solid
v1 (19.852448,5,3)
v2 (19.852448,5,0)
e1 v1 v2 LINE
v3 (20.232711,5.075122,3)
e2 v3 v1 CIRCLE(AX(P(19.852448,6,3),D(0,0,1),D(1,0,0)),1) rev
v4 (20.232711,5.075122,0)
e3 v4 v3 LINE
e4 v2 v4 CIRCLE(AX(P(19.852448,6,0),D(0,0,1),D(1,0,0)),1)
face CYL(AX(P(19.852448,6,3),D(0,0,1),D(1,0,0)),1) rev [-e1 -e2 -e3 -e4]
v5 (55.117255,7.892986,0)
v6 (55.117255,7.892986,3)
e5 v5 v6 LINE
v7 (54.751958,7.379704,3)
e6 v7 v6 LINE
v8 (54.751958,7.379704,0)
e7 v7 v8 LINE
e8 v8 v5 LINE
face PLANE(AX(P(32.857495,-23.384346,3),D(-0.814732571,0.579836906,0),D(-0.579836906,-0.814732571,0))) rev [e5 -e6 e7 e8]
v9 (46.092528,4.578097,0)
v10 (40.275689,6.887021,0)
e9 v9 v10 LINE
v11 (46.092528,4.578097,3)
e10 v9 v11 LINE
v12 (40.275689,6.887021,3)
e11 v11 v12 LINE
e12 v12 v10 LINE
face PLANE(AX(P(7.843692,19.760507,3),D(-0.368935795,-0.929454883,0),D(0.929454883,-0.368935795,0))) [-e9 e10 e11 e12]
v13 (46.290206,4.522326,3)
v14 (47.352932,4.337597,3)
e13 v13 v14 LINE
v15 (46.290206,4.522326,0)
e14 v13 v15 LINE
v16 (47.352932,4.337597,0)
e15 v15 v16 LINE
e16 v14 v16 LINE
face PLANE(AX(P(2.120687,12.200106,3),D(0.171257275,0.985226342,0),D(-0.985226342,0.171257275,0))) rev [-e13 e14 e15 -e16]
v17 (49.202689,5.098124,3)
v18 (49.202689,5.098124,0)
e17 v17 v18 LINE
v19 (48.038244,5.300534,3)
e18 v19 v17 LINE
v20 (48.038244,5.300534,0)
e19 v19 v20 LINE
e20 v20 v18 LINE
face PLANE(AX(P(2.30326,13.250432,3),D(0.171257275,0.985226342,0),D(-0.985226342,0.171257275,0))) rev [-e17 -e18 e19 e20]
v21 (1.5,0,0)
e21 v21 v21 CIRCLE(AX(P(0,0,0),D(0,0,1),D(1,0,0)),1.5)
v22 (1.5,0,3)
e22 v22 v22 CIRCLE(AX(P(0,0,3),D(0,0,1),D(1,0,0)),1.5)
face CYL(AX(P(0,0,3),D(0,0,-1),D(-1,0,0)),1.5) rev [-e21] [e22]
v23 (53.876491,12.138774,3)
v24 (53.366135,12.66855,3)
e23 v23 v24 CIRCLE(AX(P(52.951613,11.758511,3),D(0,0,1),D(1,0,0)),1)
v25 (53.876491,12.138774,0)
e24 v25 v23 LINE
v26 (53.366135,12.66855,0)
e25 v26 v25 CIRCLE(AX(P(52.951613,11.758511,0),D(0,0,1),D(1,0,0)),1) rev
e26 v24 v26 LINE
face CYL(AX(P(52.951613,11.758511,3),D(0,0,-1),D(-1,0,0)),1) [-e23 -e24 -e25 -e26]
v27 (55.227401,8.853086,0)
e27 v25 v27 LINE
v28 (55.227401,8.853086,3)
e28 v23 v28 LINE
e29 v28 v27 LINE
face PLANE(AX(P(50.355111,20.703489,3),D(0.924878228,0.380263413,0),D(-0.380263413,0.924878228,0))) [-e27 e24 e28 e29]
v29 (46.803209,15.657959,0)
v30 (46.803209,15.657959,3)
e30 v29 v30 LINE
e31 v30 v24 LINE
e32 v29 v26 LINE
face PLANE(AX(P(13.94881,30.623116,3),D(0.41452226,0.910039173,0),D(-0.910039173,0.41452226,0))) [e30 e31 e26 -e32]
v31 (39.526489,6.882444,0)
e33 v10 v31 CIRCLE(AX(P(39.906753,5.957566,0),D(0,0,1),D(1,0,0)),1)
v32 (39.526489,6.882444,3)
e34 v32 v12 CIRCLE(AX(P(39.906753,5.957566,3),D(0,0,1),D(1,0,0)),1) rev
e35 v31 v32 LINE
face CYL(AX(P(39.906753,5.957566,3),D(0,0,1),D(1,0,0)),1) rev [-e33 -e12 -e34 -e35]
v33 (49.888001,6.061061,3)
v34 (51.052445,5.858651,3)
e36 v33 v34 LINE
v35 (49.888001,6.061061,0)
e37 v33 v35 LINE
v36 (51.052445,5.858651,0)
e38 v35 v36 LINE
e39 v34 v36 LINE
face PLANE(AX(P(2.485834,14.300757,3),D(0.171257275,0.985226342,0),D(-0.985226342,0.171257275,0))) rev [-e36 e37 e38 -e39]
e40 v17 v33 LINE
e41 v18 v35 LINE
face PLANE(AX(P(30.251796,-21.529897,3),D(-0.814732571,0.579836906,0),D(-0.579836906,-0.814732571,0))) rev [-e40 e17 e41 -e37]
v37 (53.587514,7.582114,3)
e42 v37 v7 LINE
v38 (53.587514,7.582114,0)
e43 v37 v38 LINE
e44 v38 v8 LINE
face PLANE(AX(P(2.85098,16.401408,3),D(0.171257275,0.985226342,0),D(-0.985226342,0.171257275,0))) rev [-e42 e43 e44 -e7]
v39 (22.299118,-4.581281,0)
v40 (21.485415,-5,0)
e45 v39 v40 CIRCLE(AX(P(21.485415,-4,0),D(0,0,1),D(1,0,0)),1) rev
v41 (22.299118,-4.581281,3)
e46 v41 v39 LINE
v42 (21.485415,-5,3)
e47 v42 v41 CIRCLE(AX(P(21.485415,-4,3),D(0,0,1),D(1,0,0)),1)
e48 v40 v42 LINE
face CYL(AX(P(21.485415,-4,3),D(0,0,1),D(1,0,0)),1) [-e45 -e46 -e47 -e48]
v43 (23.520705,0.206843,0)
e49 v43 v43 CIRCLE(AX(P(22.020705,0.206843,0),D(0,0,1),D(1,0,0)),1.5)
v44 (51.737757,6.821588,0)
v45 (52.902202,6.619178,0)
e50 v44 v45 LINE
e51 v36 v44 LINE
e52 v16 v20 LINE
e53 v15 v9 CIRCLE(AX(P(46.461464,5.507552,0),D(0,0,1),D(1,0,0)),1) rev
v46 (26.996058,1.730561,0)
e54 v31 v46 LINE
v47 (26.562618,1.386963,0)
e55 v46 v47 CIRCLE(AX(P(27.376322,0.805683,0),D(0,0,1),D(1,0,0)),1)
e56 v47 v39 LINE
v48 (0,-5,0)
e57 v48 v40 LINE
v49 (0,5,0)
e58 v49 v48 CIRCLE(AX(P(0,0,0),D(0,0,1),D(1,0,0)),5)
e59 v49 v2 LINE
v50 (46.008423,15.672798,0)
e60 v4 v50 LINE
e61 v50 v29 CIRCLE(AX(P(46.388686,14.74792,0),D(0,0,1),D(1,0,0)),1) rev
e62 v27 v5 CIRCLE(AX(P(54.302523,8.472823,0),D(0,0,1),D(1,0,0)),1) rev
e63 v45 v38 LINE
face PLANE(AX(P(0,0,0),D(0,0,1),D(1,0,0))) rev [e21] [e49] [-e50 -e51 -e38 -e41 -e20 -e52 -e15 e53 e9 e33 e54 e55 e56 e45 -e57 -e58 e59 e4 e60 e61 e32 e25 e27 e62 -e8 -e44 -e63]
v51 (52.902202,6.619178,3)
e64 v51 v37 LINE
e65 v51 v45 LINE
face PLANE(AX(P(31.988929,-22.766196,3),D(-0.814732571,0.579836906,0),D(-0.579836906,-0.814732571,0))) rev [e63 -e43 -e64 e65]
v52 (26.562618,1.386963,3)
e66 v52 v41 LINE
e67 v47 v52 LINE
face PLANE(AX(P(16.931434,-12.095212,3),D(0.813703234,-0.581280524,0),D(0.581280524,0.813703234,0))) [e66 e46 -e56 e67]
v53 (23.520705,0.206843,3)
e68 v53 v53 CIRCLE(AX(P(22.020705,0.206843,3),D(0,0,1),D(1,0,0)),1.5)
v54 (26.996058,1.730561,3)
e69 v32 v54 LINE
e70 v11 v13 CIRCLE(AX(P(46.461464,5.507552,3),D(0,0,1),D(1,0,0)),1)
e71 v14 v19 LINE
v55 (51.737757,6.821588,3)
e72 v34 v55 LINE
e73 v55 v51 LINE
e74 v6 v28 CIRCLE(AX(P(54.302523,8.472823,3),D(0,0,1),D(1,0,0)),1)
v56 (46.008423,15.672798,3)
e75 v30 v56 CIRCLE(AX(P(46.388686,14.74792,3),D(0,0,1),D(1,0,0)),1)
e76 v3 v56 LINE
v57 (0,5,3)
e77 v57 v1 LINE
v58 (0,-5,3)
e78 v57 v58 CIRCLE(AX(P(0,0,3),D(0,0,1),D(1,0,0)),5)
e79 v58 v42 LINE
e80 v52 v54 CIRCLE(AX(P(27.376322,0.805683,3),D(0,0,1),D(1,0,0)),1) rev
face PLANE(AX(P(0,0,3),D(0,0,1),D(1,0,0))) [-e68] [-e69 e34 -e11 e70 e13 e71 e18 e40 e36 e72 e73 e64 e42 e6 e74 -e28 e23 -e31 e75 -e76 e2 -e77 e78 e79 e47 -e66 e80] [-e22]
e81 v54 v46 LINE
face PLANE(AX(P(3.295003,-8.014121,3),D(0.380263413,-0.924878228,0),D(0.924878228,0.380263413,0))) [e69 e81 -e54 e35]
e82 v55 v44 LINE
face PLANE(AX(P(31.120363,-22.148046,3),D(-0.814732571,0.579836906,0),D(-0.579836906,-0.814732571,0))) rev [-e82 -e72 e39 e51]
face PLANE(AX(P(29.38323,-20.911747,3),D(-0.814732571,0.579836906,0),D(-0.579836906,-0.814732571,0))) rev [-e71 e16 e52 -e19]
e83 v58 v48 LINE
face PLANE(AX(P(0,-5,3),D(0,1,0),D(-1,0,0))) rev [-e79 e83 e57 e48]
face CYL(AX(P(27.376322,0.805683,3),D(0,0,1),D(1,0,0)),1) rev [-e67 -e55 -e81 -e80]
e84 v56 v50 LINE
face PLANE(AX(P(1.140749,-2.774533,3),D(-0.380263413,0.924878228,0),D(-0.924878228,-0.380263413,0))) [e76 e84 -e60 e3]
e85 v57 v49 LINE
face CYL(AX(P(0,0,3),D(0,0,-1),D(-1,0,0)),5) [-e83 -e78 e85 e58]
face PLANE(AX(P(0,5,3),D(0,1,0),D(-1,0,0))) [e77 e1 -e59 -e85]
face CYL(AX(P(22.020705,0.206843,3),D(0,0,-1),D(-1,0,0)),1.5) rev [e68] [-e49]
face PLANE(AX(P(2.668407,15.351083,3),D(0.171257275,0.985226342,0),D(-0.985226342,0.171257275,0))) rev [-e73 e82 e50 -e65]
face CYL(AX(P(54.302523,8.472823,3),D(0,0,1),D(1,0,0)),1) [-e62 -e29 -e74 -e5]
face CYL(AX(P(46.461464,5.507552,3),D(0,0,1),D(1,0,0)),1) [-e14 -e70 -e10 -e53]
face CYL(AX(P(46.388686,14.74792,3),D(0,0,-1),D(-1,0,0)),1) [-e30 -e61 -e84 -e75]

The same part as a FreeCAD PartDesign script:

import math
import FreeCAD as App
import Part
import Sketcher

V = App.Vector
Q = App.Units.Quantity


def edges_at(feature, points):
    """Names of the edges that pass closest to the given points."""
    edges = feature.Shape.Edges
    near = lambda p: min(range(len(edges)), key=lambda i: edges[i].distToShape(Part.Vertex(*p))[0])
    return sorted({f"Edge{near(p) + 1}" for p in points})

doc = App.newDocument("Part")
body = doc.addObject("PartDesign::Body", "Body")

sketch1 = body.newObject("Sketcher::SketchObject", "Sketch")
sketch1.AttachmentSupport = (doc.getObject("XY_Plane"), [""])
sketch1.MapMode = "FlatFace"
sketch1.addGeometry(Part.LineSegment(V(20.1, 5, 0), V(0, 5, 0)), False)
sketch1.addGeometry(Part.ArcOfCircle(Part.Circle(V(0, 0, 0), V(0, 0, 1), 5), math.radians(90), math.radians(270)), False)
sketch1.addGeometry(Part.LineSegment(V(0, -5, 0), V(22, -5, 0)), False)
sketch1.addGeometry(Part.LineSegment(V(22, -5, 0), V(26.7, 1.6, 0)), False)
sketch1.addGeometry(Part.LineSegment(V(26.7, 1.6, 0), V(39.9, 7, 0)), False)
sketch1.addGeometry(Part.LineSegment(V(39.9, 7, 0), V(46.2, 4.5, 0)), False)
sketch1.addGeometry(Part.LineSegment(V(46.2, 4.5, 0), V(47.4, 4.3, 0)), False)
sketch1.addGeometry(Part.LineSegment(V(47.4, 4.3, 0), V(48, 5.3, 0)), False)
sketch1.addGeometry(Part.LineSegment(V(48, 5.3, 0), V(49.2, 5.1, 0)), False)
sketch1.addGeometry(Part.LineSegment(V(49.2, 5.1, 0), V(49.9, 6.1, 0)), False)
sketch1.addGeometry(Part.LineSegment(V(49.9, 6.1, 0), V(51.1, 5.9, 0)), False)
sketch1.addGeometry(Part.LineSegment(V(51.1, 5.9, 0), V(51.7, 6.8, 0)), False)
sketch1.addGeometry(Part.LineSegment(V(51.7, 6.8, 0), V(52.9, 6.6, 0)), False)
sketch1.addGeometry(Part.LineSegment(V(52.9, 6.6, 0), V(53.6, 7.6, 0)), False)
sketch1.addGeometry(Part.LineSegment(V(53.6, 7.6, 0), V(54.8, 7.4, 0)), False)
sketch1.addGeometry(Part.LineSegment(V(54.8, 7.4, 0), V(55.4, 8.3, 0)), False)
sketch1.addGeometry(Part.LineSegment(V(55.4, 8.3, 0), V(53.7, 12.5, 0)), False)
sketch1.addGeometry(Part.LineSegment(V(53.7, 12.5, 0), V(46.4, 15.8, 0)), False)
sketch1.addGeometry(Part.LineSegment(V(46.4, 15.8, 0), V(20.1, 5, 0)), False)
sketch1.addGeometry(Part.Circle(V(0, 0, 0), V(0, 0, 1), 1.5), False)
sketch1.addGeometry(Part.Circle(V(22, 0.2, 0), V(0, 0, 1), 1.5), False)
sketch1.addConstraint(Sketcher.Constraint("Tangent", 0, 2, 1, 1))
sketch1.addConstraint(Sketcher.Constraint("Tangent", 1, 2, 2, 1))
sketch1.addConstraint(Sketcher.Constraint("Coincident", 2, 2, 3, 1))
sketch1.addConstraint(Sketcher.Constraint("Coincident", 3, 2, 4, 1))
sketch1.addConstraint(Sketcher.Constraint("Coincident", 4, 2, 5, 1))
sketch1.addConstraint(Sketcher.Constraint("Coincident", 5, 2, 6, 1))
sketch1.addConstraint(Sketcher.Constraint("Coincident", 6, 2, 7, 1))
sketch1.addConstraint(Sketcher.Constraint("Coincident", 7, 2, 8, 1))
sketch1.addConstraint(Sketcher.Constraint("Coincident", 8, 2, 9, 1))
sketch1.addConstraint(Sketcher.Constraint("Coincident", 9, 2, 10, 1))
sketch1.addConstraint(Sketcher.Constraint("Coincident", 10, 2, 11, 1))
sketch1.addConstraint(Sketcher.Constraint("Coincident", 11, 2, 12, 1))
sketch1.addConstraint(Sketcher.Constraint("Coincident", 12, 2, 13, 1))
sketch1.addConstraint(Sketcher.Constraint("Coincident", 13, 2, 14, 1))
sketch1.addConstraint(Sketcher.Constraint("Coincident", 14, 2, 15, 1))
sketch1.addConstraint(Sketcher.Constraint("Coincident", 15, 2, 16, 1))
sketch1.addConstraint(Sketcher.Constraint("Coincident", 16, 2, 17, 1))
sketch1.addConstraint(Sketcher.Constraint("Coincident", 17, 2, 18, 1))
sketch1.addConstraint(Sketcher.Constraint("Coincident", 18, 2, 0, 1))
sketch1.addConstraint(Sketcher.Constraint("Horizontal", 0))
sketch1.addConstraint(Sketcher.Constraint("Horizontal", 2))
sketch1.addConstraint(Sketcher.Constraint("Coincident", 1, 3, -1, 1))
sketch1.addConstraint(Sketcher.Constraint("Coincident", 19, 3, -1, 1))
sketch1.addConstraint(Sketcher.Constraint("Equal", 19, 20))
sketch1.addConstraint(Sketcher.Constraint("Parallel", 6, 8))
sketch1.addConstraint(Sketcher.Constraint("Parallel", 7, 9))
sketch1.addConstraint(Sketcher.Constraint("Parallel", 8, 10))
sketch1.addConstraint(Sketcher.Constraint("Parallel", 9, 11))
sketch1.addConstraint(Sketcher.Constraint("Parallel", 10, 12))
sketch1.addConstraint(Sketcher.Constraint("Parallel", 11, 13))
sketch1.addConstraint(Sketcher.Constraint("Parallel", 12, 14))
sketch1.addConstraint(Sketcher.Constraint("Parallel", 13, 15))
sketch1.addConstraint(Sketcher.Constraint("Perpendicular", 4, 16))
sketch1.addConstraint(Sketcher.Constraint("Perpendicular", 16, 18))
sketch1.addConstraint(Sketcher.Constraint("Equal", 6, 7))
sketch1.addConstraint(Sketcher.Constraint("Equal", 7, 8))
sketch1.addConstraint(Sketcher.Constraint("Equal", 8, 9))
sketch1.addConstraint(Sketcher.Constraint("Equal", 9, 10))
sketch1.addConstraint(Sketcher.Constraint("Equal", 10, 11))
sketch1.addConstraint(Sketcher.Constraint("Equal", 11, 12))
sketch1.addConstraint(Sketcher.Constraint("Equal", 12, 13))
sketch1.addConstraint(Sketcher.Constraint("Equal", 13, 14))
sketch1.addConstraint(Sketcher.Constraint("Equal", 14, 15))
sketch1.addConstraint(Sketcher.Constraint("Diameter", 19, 3.0))
sketch1.addConstraint(Sketcher.Constraint("Radius", 1, 5.0))
sketch1.addConstraint(Sketcher.Constraint("DistanceX", 2, 1, 2, 2, 22.0))
sketch1.addConstraint(Sketcher.Constraint("Distance", 16, 4.5))
sketch1.addConstraint(Sketcher.Constraint("Distance", 18, 28.5))
sketch1.addConstraint(Sketcher.Constraint("DistanceX", 0, 2, 0, 1, 20.05))
sketch1.addConstraint(Sketcher.Constraint("Angle", 4, Q("22.35 deg")))
sketch1.addConstraint(Sketcher.Constraint("Angle", 5, Q("-21.65 deg")))
sketch1.addConstraint(Sketcher.Constraint("Distance", 4, 14.24))
sketch1.addConstraint(Sketcher.Constraint("DistanceX", -1, 1, 9, 2, 49.888001))
sketch1.addConstraint(Sketcher.Constraint("DistanceX", -1, 1, 3, 2, 26.729898))
sketch1.addConstraint(Sketcher.Constraint("DistanceX", -1, 1, 12, 2, 52.902202))
sketch1.addConstraint(Sketcher.Constraint("DistanceY", -1, 1, 3, 2, 1.62113))
sketch1.addConstraint(Sketcher.Constraint("DistanceX", -1, 1, 5, 2, 46.188488))
sketch1.addConstraint(Sketcher.Constraint("DistanceY", -1, 1, 9, 2, 6.061061))
sketch1.addConstraint(Sketcher.Constraint("DistanceX", 20, 3, 4, 2, 17.879459))
sketch1.addConstraint(Sketcher.Constraint("DistanceY", 20, 3, 7, 2, 5.093691))
pad1 = body.newObject("PartDesign::Pad", "Pad")
pad1.Profile = sketch1
pad1.Length = 3
doc.recompute()

fillet = body.newObject("PartDesign::Fillet", "Fillet")
fillet.Base = (pad1, edges_at(pad1, [
    (22, -5, 1.5),
    (20.05, 5, 1.5),
    (46.409, 15.838, 1.5),
    (53.726, 12.505, 1.5),
    (55.437, 8.343, 1.5),
    (46.188, 4.54, 1.5),
    (39.9, 7.036, 1.5),
    (26.73, 1.621, 1.5),
]))
fillet.Radius = 1

doc.recompute()
